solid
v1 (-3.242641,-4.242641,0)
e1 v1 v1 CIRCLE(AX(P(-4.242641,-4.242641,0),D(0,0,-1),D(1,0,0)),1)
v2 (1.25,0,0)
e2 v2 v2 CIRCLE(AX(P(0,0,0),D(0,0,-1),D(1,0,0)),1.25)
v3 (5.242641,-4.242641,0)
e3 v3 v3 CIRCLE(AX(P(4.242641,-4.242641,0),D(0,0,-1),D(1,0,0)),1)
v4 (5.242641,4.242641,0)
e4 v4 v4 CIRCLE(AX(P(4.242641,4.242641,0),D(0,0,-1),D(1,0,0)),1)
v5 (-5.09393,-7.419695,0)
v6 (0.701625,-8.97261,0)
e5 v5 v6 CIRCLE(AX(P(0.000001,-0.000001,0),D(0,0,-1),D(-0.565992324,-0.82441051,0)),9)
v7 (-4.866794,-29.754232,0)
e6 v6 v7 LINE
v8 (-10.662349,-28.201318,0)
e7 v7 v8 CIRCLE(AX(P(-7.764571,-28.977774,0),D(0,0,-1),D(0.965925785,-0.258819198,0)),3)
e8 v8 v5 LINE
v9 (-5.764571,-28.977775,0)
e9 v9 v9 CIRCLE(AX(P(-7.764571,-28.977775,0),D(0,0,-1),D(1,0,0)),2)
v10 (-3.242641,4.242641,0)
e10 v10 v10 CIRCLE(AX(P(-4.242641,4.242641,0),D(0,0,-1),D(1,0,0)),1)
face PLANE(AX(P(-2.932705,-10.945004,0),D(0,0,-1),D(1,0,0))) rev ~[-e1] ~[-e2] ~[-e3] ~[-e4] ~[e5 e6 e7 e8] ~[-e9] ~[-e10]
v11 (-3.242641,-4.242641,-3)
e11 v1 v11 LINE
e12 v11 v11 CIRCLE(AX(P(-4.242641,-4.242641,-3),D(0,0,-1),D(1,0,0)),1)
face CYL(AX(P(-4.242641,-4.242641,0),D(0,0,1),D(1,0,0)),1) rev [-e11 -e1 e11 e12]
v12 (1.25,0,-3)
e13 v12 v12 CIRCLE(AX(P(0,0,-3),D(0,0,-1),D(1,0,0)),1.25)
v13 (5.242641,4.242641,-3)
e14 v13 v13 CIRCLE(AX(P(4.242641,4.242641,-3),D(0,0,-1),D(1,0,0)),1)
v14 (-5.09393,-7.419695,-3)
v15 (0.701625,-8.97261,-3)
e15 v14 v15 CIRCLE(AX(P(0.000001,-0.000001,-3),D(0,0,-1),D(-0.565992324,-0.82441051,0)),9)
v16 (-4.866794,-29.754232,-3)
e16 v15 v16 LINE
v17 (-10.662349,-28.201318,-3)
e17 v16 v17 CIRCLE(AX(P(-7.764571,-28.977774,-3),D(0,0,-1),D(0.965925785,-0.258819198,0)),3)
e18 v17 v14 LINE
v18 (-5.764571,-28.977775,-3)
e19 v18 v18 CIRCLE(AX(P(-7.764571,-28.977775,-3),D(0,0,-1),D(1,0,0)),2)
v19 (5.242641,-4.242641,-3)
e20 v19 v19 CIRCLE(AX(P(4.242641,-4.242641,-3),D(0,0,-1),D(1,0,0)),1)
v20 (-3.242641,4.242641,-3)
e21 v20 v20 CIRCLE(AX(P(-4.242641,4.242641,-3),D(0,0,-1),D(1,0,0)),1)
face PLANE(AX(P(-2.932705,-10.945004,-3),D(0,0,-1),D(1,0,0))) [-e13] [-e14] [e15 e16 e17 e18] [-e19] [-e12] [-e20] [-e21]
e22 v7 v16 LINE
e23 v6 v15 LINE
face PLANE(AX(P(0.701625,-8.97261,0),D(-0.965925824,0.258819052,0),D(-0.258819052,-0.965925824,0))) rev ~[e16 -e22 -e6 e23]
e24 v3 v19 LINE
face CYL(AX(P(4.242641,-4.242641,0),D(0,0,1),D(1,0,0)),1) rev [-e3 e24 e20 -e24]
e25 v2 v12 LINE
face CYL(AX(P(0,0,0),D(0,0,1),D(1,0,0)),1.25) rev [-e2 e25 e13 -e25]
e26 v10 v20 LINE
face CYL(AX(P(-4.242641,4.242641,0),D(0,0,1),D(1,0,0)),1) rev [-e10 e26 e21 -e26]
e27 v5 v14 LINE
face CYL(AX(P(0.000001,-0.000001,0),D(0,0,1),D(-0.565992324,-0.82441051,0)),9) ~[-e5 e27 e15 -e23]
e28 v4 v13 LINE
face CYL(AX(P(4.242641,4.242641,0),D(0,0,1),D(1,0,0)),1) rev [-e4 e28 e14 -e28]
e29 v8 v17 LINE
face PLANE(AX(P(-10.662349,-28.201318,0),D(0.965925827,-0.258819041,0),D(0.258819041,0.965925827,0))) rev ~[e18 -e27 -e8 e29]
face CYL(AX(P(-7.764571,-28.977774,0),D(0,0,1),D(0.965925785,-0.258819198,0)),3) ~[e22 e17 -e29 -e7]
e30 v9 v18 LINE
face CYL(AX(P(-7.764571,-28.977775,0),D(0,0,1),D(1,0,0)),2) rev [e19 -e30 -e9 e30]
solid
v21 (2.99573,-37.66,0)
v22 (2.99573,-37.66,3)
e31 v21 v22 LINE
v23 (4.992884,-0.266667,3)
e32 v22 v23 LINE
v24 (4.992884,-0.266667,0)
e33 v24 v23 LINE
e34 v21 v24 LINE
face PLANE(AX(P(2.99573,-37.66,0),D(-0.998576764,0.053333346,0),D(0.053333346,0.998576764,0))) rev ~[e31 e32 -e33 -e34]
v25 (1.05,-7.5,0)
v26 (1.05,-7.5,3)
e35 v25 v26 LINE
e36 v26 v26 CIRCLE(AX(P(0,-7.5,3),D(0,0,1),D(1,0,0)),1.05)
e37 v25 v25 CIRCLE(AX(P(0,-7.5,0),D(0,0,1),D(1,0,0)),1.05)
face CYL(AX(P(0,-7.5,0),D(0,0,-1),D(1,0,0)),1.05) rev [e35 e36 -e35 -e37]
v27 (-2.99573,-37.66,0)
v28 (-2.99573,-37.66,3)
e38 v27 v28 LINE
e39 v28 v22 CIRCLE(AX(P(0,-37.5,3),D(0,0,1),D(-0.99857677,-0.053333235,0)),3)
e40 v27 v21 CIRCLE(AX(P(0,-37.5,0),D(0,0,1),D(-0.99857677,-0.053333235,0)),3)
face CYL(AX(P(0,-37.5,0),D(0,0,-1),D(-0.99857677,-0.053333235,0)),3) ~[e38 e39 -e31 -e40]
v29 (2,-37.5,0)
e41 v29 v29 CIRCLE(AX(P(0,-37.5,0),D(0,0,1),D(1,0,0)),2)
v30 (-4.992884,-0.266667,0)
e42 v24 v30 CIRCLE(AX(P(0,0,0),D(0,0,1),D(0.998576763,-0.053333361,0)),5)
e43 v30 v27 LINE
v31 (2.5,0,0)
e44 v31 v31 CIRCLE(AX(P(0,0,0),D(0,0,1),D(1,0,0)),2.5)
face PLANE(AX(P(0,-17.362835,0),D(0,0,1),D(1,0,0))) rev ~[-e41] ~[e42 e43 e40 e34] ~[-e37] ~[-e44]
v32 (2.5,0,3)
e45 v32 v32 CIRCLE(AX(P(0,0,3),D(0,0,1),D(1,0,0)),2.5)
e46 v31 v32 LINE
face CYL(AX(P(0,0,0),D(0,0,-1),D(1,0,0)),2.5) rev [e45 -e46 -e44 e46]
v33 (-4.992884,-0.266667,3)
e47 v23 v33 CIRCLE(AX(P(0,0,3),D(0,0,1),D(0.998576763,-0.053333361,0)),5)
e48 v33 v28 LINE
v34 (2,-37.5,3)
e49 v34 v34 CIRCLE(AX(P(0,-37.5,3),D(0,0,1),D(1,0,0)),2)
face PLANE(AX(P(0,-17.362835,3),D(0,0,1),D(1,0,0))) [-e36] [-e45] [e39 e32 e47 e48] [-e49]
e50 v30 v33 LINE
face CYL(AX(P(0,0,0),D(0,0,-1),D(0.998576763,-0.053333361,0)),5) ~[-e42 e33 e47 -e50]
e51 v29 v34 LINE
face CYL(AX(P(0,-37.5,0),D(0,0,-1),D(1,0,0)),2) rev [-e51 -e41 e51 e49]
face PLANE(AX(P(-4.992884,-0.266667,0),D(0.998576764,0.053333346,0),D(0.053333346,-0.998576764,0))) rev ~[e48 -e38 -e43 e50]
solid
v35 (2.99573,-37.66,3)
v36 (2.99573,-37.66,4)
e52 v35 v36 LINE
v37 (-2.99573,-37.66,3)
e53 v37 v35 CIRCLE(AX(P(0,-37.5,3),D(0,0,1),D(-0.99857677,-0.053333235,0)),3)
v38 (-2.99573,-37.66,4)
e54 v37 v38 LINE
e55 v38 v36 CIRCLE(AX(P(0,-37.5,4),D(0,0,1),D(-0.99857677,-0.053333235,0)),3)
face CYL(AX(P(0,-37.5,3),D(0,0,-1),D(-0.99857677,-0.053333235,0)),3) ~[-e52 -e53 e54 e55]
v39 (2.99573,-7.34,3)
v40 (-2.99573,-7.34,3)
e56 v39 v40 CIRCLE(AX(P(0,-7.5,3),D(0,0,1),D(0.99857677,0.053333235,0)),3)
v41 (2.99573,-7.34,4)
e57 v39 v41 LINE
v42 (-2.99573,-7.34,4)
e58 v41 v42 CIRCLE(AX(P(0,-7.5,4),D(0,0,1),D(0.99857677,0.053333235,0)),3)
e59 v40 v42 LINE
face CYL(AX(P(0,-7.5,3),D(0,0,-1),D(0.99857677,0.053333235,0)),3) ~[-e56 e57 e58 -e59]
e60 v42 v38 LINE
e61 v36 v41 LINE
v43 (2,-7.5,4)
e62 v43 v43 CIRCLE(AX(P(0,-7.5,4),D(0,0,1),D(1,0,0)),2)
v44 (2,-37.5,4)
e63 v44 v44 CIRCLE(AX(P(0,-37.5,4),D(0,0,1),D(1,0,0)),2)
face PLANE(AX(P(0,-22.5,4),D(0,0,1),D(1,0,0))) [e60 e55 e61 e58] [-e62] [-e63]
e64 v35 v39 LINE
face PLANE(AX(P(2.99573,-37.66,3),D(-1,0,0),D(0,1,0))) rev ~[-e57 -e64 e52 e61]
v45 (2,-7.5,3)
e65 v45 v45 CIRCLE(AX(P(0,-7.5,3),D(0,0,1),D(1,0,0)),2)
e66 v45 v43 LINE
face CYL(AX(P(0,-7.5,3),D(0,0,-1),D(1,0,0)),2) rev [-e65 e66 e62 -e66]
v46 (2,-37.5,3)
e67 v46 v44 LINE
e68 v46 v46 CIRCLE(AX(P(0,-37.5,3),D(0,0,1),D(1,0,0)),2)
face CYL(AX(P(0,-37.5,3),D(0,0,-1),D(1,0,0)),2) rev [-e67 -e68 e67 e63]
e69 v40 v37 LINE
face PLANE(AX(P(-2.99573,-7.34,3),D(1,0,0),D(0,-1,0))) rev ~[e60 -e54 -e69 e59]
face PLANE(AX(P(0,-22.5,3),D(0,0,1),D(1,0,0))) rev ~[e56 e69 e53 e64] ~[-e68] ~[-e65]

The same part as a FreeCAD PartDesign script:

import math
import FreeCAD as App
import Part
import Sketcher
Q = App.Units.Quantity

doc = App.newDocument("Part")
body = doc.addObject("PartDesign::Body", "Body")

# Sketch on XY plane
sketch1 = doc.addObject("Sketcher::SketchObject", "Sketch")
body.addObject(sketch1)
sketch1.AttachmentSupport = (doc.XY_Plane, [""])
sketch1.MapMode = "FlatFace"
sketch1.addGeometry([
    Part.LineSegment(App.Vector(3, -37.7, 0), App.Vector(5, -0.3, 0)),  # 0
    Part.ArcOfCircle(Part.Circle(App.Vector(0, 0, 0), App.Vector(0, 0, 1), 5), math.radians(-3), math.radians(183)),  # 1
    Part.LineSegment(App.Vector(-5, -0.3, 0), App.Vector(-3, -37.7, 0)),  # 2
    Part.ArcOfCircle(Part.Circle(App.Vector(0, -37.5, 0), App.Vector(0, 0, 1), 3), math.radians(-177), math.radians(-3)),  # 3
    Part.Circle(App.Vector(0, -37.5, 0), App.Vector(0, 0, 1), 2),  # 4
    Part.Circle(App.Vector(0, -7.5, 0), App.Vector(0, 0, 1), 1.1),  # 5
    Part.Circle(App.Vector(0, 0, 0), App.Vector(0, 0, 1), 2.5),  # 6
], False)
sketch1.addConstraint([
    Sketcher.Constraint("Tangent", 0, 2, 1, 1),
    Sketcher.Constraint("Tangent", 1, 2, 2, 1),
    Sketcher.Constraint("Tangent", 2, 2, 3, 1),
    Sketcher.Constraint("Tangent", 3, 2, 0, 1),
    Sketcher.Constraint("Coincident", 1, 3, -1, 1),
    Sketcher.Constraint("Coincident", 6, 3, -1, 1),
    Sketcher.Constraint("Coincident", 4, 3, 3, 3),
    Sketcher.Constraint("PointOnObject", 3, 3, -2),
    Sketcher.Constraint("PointOnObject", 5, 3, -2),
    Sketcher.Constraint("Diameter", 4, Q("4 mm")),
    Sketcher.Constraint("Diameter", 6, Q("5 mm")),
    Sketcher.Constraint("Radius", 1, Q("5 mm")),
    Sketcher.Constraint("Radius", 3, Q("3 mm")),
    Sketcher.Constraint("Diameter", 5, Q("2.1 mm")),
    Sketcher.Constraint("DistanceY", 4, 3, 5, 3, Q("30 mm")),
    Sketcher.Constraint("DistanceY", 3, 3, -1, 1, Q("37.5 mm")),
])
pad1 = doc.addObject("PartDesign::Pad", "Pad")
body.addObject(pad1)
pad1.Profile = sketch1
pad1.Length = 3
body2 = doc.addObject("PartDesign::Body", "Body001")

# Sketch on XY plane
sketch2 = doc.addObject("Sketcher::SketchObject", "Sketch001")
body2.addObject(sketch2)
sketch2.AttachmentSupport = (doc.getObject("XY_Plane001"), [""])
sketch2.MapMode = "FlatFace"
sketch2.AttachmentOffset = App.Placement(App.Vector(0, 0, 3), App.Rotation())
sketch2.addGeometry([
    Part.LineSegment(App.Vector(-3, -7.3, 0), App.Vector(-3, -37.7, 0)),  # 0
    Part.ArcOfCircle(Part.Circle(App.Vector(0, -37.5, 0), App.Vector(0, 0, 1), 3), math.radians(-177), math.radians(-3)),  # 1
    Part.LineSegment(App.Vector(3, -37.7, 0), App.Vector(3, -7.3, 0)),  # 2
    Part.ArcOfCircle(Part.Circle(App.Vector(0, -7.5, 0), App.Vector(0, 0, 1), 3), math.radians(3), math.radians(177)),  # 3
    Part.Circle(App.Vector(0, -37.5, 0), App.Vector(0, 0, 1), 2),  # 4
    Part.Circle(App.Vector(0, -7.5, 0), App.Vector(0, 0, 1), 2),  # 5
], False)
sketch2.addConstraint([
    Sketcher.Constraint("Coincident", 0, 2, 1, 1),
    Sketcher.Constraint("Coincident", 1, 2, 2, 1),
    Sketcher.Constraint("Coincident", 2, 2, 3, 1),
    Sketcher.Constraint("Coincident", 3, 2, 0, 1),
    Sketcher.Constraint("Vertical", 0),
    Sketcher.Constraint("Vertical", 2),
    Sketcher.Constraint("Coincident", 4, 3, 1, 3),
    Sketcher.Constraint("Coincident", 5, 3, 3, 3),
    Sketcher.Constraint("Equal", 1, 3),
    Sketcher.Constraint("Equal", 4, 5),
    Sketcher.Constraint("Symmetric", 0, 2, 1, 2, -2),
    Sketcher.Constraint("PointOnObject", 3, 3, -2),
    Sketcher.Constraint("Diameter", 4, Q("4 mm")),
    Sketcher.Constraint("Radius", 1, Q("3 mm")),
    Sketcher.Constraint("DistanceY", 1, 3, 3, 3, Q("30.000001 mm")),
    Sketcher.Constraint("DistanceY", 0, 2, 0, 1, Q("30.32 mm")),
    Sketcher.Constraint("DistanceY", 1, 3, -1, 1, Q("37.5 mm")),
])
pad2 = doc.addObject("PartDesign::Pad", "Pad001")
body2.addObject(pad2)
pad2.Profile = sketch2
pad2.Length = 1
body3 = doc.addObject("PartDesign::Body", "Body002")

# Sketch on XY plane
sketch3 = doc.addObject("Sketcher::SketchObject", "Sketch002")
body3.addObject(sketch3)
sketch3.AttachmentSupport = (doc.getObject("XY_Plane002"), [""])
sketch3.MapMode = "FlatFace"
sketch3.addGeometry([
    Part.LineSegment(App.Vector(-10.7, -28.2, 0), App.Vector(-5.1, -7.4, 0)),  # 0
    Part.ArcOfCircle(Part.Circle(App.Vector(0, 0, 0), App.Vector(0, 0, 1), 9), math.radians(-86), math.radians(236)),  # 1
    Part.LineSegment(App.Vector(0.7, -9, 0), App.Vector(-4.9, -29.8, 0)),  # 2
    Part.ArcOfCircle(Part.Circle(App.Vector(-7.8, -29, 0), App.Vector(0, 0, 1), 3), math.radians(165), math.radians(345)),  # 3
    Part.Circle(App.Vector(-4.2, 4.2, 0), App.Vector(0, 0, 1), 1),  # 4
    Part.Circle(App.Vector(-4.2, -4.2, 0), App.Vector(0, 0, 1), 1),  # 5
    Part.Circle(App.Vector(0, 0, 0), App.Vector(0, 0, 1), 1.2),  # 6
    Part.Circle(App.Vector(4.2, 4.2, 0), App.Vector(0, 0, 1), 1),  # 7
    Part.Circle(App.Vector(4.2, -4.2, 0), App.Vector(0, 0, 1), 1),  # 8
    Part.Circle(App.Vector(-7.8, -29, 0), App.Vector(0, 0, 1), 2),  # 9
], False)
sketch3.addConstraint([
    Sketcher.Constraint("Coincident", 0, 2, 1, 2),
    Sketcher.Constraint("Coincident", 1, 1, 2, 1),
    Sketcher.Constraint("Tangent", 2, 2, 3, 2),
    Sketcher.Constraint("Tangent", 3, 1, 0, 1),
    Sketcher.Constraint("Coincident", 1, 3, -1, 1),
    Sketcher.Constraint("Coincident", 6, 3, -1, 1),
    Sketcher.Constraint("Coincident", 9, 3, 3, 3),
    Sketcher.Constraint("Equal", 4, 5),
    Sketcher.Constraint("Equal", 5, 7),
    Sketcher.Constraint("Equal", 7, 8),
    Sketcher.Constraint("Symmetric", 5, 3, 7, 3, -1, 1),
    Sketcher.Constraint("Symmetric", 4, 3, 8, 3, -1, 1),
    Sketcher.Constraint("Symmetric", 4, 3, 7, 3, -2),
    Sketcher.Constraint("Parallel", 0, 2),
    Sketcher.Constraint("Equal", 0, 2),
    Sketcher.Constraint("Diameter", 4, Q("2 mm")),
    Sketcher.Constraint("Diameter", 9, Q("4 mm")),
    Sketcher.Constraint("Radius", 1, Q("9 mm")),
    Sketcher.Constraint("Radius", 3, Q("3 mm")),
    Sketcher.Constraint("Diameter", 6, Q("2.5 mm")),
    Sketcher.Constraint("Angle", 0, Q("75 deg")),
    Sketcher.Constraint("Distance", 0, Q("21.514719 mm")),
    Sketcher.Constraint("DistanceX", 4, 3, -1, 1, Q("4.242641 mm")),
    Sketcher.Constraint("DistanceY", -1, 1, 4, 3, Q("4.242641 mm")),
])
pad3 = doc.addObject("PartDesign::Pad", "Pad002")
body3.addObject(pad3)
pad3.Profile = sketch3
pad3.Length = 3
pad3.Reversed = True

doc.recompute()
